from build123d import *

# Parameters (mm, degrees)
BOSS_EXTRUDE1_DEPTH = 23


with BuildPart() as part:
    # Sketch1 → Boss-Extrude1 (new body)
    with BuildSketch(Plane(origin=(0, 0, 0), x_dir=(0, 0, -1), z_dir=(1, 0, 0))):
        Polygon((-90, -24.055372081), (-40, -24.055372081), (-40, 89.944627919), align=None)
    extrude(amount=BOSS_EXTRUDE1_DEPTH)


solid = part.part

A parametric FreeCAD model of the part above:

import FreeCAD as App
import Part
import Sketcher
Q = App.Units.Quantity

doc = App.newDocument("Part")
body = doc.addObject("PartDesign::Body", "Body")

# Sketch on YZ plane
sketch1 = body.newObject("Sketcher::SketchObject", "Sketch")
sketch1.AttachmentSupport = (doc.getObject("YZ_Plane"), [""])
sketch1.MapMode = "FlatFace"
sketch1.addGeometry(Part.LineSegment(App.Vector(-24.055372, 90, 0), App.Vector(-24.055372, 40, 0)), False)
sketch1.addGeometry(Part.LineSegment(App.Vector(-24.055372, 40, 0), App.Vector(89.944628, 40, 0)), False)
sketch1.addGeometry(Part.LineSegment(App.Vector(89.944628, 40, 0), App.Vector(-24.055372, 90, 0)), False)
sketch1.addConstraint(Sketcher.Constraint("Coincident", 0, 2, 1, 1))
sketch1.addConstraint(Sketcher.Constraint("Coincident", 1, 2, 2, 1))
sketch1.addConstraint(Sketcher.Constraint("Coincident", 2, 2, 0, 1))
sketch1.addConstraint(Sketcher.Constraint("Vertical", 0))
sketch1.addConstraint(Sketcher.Constraint("Horizontal", 1))
sketch1.addConstraint(Sketcher.Constraint("DistanceX", 1, 1, 1, 2, Q("114 mm")))
sketch1.addConstraint(Sketcher.Constraint("DistanceY", 0, 2, 0, 1, Q("50 mm")))
sketch1.addConstraint(Sketcher.Constraint("DistanceY", -1, 1, 0, 2, Q("40 mm")))
sketch1.addConstraint(Sketcher.Constraint("DistanceX", 0, 2, -1, 1, Q("24.055372 mm")))
pad1 = body.newObject("PartDesign::Pad", "Pad")
pad1.Profile = sketch1
pad1.Length = 23

doc.recompute()
